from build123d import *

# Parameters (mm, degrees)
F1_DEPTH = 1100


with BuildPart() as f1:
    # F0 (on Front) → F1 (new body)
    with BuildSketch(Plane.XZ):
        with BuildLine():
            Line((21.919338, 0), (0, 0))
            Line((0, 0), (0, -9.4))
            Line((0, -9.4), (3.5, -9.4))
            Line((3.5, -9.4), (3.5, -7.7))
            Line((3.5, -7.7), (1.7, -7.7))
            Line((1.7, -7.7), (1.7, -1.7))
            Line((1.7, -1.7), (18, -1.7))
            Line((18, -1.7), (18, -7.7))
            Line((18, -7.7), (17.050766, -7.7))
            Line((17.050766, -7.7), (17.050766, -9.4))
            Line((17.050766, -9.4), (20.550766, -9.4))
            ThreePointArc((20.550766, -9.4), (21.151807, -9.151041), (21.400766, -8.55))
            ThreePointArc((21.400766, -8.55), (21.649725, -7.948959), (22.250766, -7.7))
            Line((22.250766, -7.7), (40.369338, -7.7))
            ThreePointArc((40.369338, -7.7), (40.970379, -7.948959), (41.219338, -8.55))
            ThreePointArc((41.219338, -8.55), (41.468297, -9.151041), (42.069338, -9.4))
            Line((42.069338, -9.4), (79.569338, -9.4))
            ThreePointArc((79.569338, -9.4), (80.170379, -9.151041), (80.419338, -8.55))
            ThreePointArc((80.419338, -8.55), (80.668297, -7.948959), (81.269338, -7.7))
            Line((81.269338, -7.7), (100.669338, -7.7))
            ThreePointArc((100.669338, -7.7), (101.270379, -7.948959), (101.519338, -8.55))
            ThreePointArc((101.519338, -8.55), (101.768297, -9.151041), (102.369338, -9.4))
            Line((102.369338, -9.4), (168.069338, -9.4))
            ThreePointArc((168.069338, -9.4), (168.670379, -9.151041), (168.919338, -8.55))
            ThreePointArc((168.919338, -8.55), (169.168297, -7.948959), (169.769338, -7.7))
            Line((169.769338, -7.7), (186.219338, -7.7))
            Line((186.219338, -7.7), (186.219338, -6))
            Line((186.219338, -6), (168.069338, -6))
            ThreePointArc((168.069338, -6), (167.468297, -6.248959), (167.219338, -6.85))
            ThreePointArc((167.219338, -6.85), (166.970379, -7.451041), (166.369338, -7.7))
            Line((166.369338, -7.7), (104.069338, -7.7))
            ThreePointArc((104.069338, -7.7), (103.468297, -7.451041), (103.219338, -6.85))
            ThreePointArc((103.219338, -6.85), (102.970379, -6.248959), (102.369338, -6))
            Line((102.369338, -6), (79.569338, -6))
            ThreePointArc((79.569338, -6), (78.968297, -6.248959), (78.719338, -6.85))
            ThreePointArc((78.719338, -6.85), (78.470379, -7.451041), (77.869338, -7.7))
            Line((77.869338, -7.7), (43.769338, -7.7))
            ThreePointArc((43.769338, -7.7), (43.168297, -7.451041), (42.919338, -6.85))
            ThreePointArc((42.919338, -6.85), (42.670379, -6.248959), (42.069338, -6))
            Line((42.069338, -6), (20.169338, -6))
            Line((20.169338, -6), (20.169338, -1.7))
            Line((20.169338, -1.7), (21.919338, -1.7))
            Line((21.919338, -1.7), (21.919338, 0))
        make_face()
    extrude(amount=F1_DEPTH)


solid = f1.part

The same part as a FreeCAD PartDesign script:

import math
import FreeCAD as App
import Part
import Sketcher
from FreeCAD import Vector

doc = App.newDocument("Part")
params = doc.addObject("Spreadsheet::Sheet", "Params")
for row, (alias, value) in enumerate([
    ("sketch1_height", "6 mm"),
    ("sketch1_radius", "0.849999 mm"),
    ("sketch1_width", "3.5 mm"),
    ("sketch1_width2", "1.8 mm"),
    ("sketch1_width3", "16.3 mm"),
    ("pad1_length", "1100 mm"),
], start=1):
    params.set(f"A{row}", alias)
    params.set(f"B{row}", "=" + value)
    params.setAlias(f"B{row}", alias)

body = doc.addObject("PartDesign::Body", "Body")

# Sketch on XZ plane
sketch1 = doc.addObject("Sketcher::SketchObject", "Sketch")
body.addObject(sketch1)
sketch1.AttachmentSupport = (doc.XZ_Plane, [""])
sketch1.MapMode = "FlatFace"
sketch1.addGeometry(Part.LineSegment(Vector(21.9, 0, 0), Vector(0, 0, 0)), False)
sketch1.addGeometry(Part.LineSegment(Vector(0, 0, 0), Vector(0, -9.4, 0)), False)
sketch1.addGeometry(Part.LineSegment(Vector(0, -9.4, 0), Vector(3.5, -9.4, 0)), False)
sketch1.addGeometry(Part.LineSegment(Vector(3.5, -9.4, 0), Vector(3.5, -7.7, 0)), False)
sketch1.addGeometry(Part.LineSegment(Vector(3.5, -7.7, 0), Vector(1.7, -7.7, 0)), False)
sketch1.addGeometry(Part.LineSegment(Vector(1.7, -7.7, 0), Vector(1.7, -1.7, 0)), False)
sketch1.addGeometry(Part.LineSegment(Vector(1.7, -1.7, 0), Vector(18, -1.7, 0)), False)
sketch1.addGeometry(Part.LineSegment(Vector(18, -1.7, 0), Vector(18, -7.7, 0)), False)
sketch1.addGeometry(Part.LineSegment(Vector(18, -7.7, 0), Vector(17.1, -7.7, 0)), False)
sketch1.addGeometry(Part.LineSegment(Vector(17.1, -7.7, 0), Vector(17.1, -9.4, 0)), False)
sketch1.addGeometry(Part.LineSegment(Vector(17.1, -9.4, 0), Vector(20.6, -9.4, 0)), False)
sketch1.addGeometry(Part.ArcOfCircle(Part.Circle(Vector(20.6, -8.6, 0), Vector(0, 0, 1), 0.8), math.radians(-90), math.radians(0)), False)
sketch1.addGeometry(Part.ArcOfCircle(Part.Circle(Vector(22.3, -8.5, 0), Vector(0, 0, 1), 0.8), math.radians(90), math.radians(180)), False)
sketch1.addGeometry(Part.LineSegment(Vector(22.3, -7.7, 0), Vector(40.4, -7.7, 0)), False)
sketch1.addGeometry(Part.ArcOfCircle(Part.Circle(Vector(40.4, -8.5, 0), Vector(0, 0, 1), 0.8), math.radians(0), math.radians(90)), False)
sketch1.addGeometry(Part.ArcOfCircle(Part.Circle(Vector(42.1, -8.6, 0), Vector(0, 0, 1), 0.8), math.radians(180), math.radians(270)), False)
sketch1.addGeometry(Part.LineSegment(Vector(42.1, -9.4, 0), Vector(79.6, -9.4, 0)), False)
sketch1.addGeometry(Part.ArcOfCircle(Part.Circle(Vector(79.6, -8.6, 0), Vector(0, 0, 1), 0.8), math.radians(-90), math.radians(0)), False)
sketch1.addGeometry(Part.ArcOfCircle(Part.Circle(Vector(81.3, -8.5, 0), Vector(0, 0, 1), 0.8), math.radians(90), math.radians(180)), False)
sketch1.addGeometry(Part.LineSegment(Vector(81.3, -7.7, 0), Vector(100.7, -7.7, 0)), False)
sketch1.addGeometry(Part.ArcOfCircle(Part.Circle(Vector(100.7, -8.5, 0), Vector(0, 0, 1), 0.8), math.radians(0), math.radians(90)), False)
sketch1.addGeometry(Part.ArcOfCircle(Part.Circle(Vector(102.4, -8.6, 0), Vector(0, 0, 1), 0.8), math.radians(180), math.radians(270)), False)
sketch1.addGeometry(Part.LineSegment(Vector(102.4, -9.4, 0), Vector(168.1, -9.4, 0)), False)
sketch1.addGeometry(Part.ArcOfCircle(Part.Circle(Vector(168.1, -8.6, 0), Vector(0, 0, 1), 0.8), math.radians(-90), math.radians(0)), False)
sketch1.addGeometry(Part.ArcOfCircle(Part.Circle(Vector(169.8, -8.5, 0), Vector(0, 0, 1), 0.8), math.radians(90), math.radians(180)), False)
sketch1.addGeometry(Part.LineSegment(Vector(169.8, -7.7, 0), Vector(186.2, -7.7, 0)), False)
sketch1.addGeometry(Part.LineSegment(Vector(186.2, -7.7, 0), Vector(186.2, -6, 0)), False)
sketch1.addGeometry(Part.LineSegment(Vector(186.2, -6, 0), Vector(168.1, -6, 0)), False)
sketch1.addGeometry(Part.ArcOfCircle(Part.Circle(Vector(168.1, -6.8, 0), Vector(0, 0, 1), 0.8), math.radians(90), math.radians(180)), False)
sketch1.addGeometry(Part.ArcOfCircle(Part.Circle(Vector(166.4, -6.9, 0), Vector(0, 0, 1), 0.8), math.radians(-90), math.radians(0)), False)
sketch1.addGeometry(Part.LineSegment(Vector(166.4, -7.7, 0), Vector(104.1, -7.7, 0)), False)
sketch1.addGeometry(Part.ArcOfCircle(Part.Circle(Vector(104.1, -6.9, 0), Vector(0, 0, 1), 0.8), math.radians(180), math.radians(270)), False)
sketch1.addGeometry(Part.ArcOfCircle(Part.Circle(Vector(102.4, -6.8, 0), Vector(0, 0, 1), 0.8), math.radians(0), math.radians(90)), False)
sketch1.addGeometry(Part.LineSegment(Vector(102.4, -6, 0), Vector(79.6, -6, 0)), False)
sketch1.addGeometry(Part.ArcOfCircle(Part.Circle(Vector(79.6, -6.8, 0), Vector(0, 0, 1), 0.8), math.radians(90), math.radians(180)), False)
sketch1.addGeometry(Part.ArcOfCircle(Part.Circle(Vector(77.9, -6.9, 0), Vector(0, 0, 1), 0.8), math.radians(-90), math.radians(0)), False)
sketch1.addGeometry(Part.LineSegment(Vector(77.9, -7.7, 0), Vector(43.8, -7.7, 0)), False)
sketch1.addGeometry(Part.ArcOfCircle(Part.Circle(Vector(43.8, -6.9, 0), Vector(0, 0, 1), 0.8), math.radians(180), math.radians(270)), False)
sketch1.addGeometry(Part.ArcOfCircle(Part.Circle(Vector(42.1, -6.8, 0), Vector(0, 0, 1), 0.8), math.radians(0), math.radians(90)), False)
sketch1.addGeometry(Part.LineSegment(Vector(42.1, -6, 0), Vector(20.2, -6, 0)), False)
sketch1.addGeometry(Part.LineSegment(Vector(20.2, -6, 0), Vector(20.2, -1.7, 0)), False)
sketch1.addGeometry(Part.LineSegment(Vector(20.2, -1.7, 0), Vector(21.9, -1.7, 0)), False)
sketch1.addGeometry(Part.LineSegment(Vector(21.9, -1.7, 0), Vector(21.9, 0, 0)), False)
sketch1.addConstraint(Sketcher.Constraint("Coincident", 0, 2, 1, 1))
sketch1.addConstraint(Sketcher.Constraint("Coincident", 1, 2, 2, 1))
sketch1.addConstraint(Sketcher.Constraint("Coincident", 2, 2, 3, 1))
sketch1.addConstraint(Sketcher.Constraint("Coincident", 3, 2, 4, 1))
sketch1.addConstraint(Sketcher.Constraint("Coincident", 4, 2, 5, 1))
sketch1.addConstraint(Sketcher.Constraint("Coincident", 5, 2, 6, 1))
sketch1.addConstraint(Sketcher.Constraint("Coincident", 6, 2, 7, 1))
sketch1.addConstraint(Sketcher.Constraint("Coincident", 7, 2, 8, 1))
sketch1.addConstraint(Sketcher.Constraint("Coincident", 8, 2, 9, 1))
sketch1.addConstraint(Sketcher.Constraint("Coincident", 9, 2, 10, 1))
sketch1.addConstraint(Sketcher.Constraint("Tangent", 10, 2, 11, 1))
sketch1.addConstraint(Sketcher.Constraint("Tangent", 11, 2, 12, 2))
sketch1.addConstraint(Sketcher.Constraint("Tangent", 12, 1, 13, 1))
sketch1.addConstraint(Sketcher.Constraint("Tangent", 13, 2, 14, 2))
sketch1.addConstraint(Sketcher.Constraint("Tangent", 14, 1, 15, 1))
sketch1.addConstraint(Sketcher.Constraint("Tangent", 15, 2, 16, 1))
sketch1.addConstraint(Sketcher.Constraint("Tangent", 16, 2, 17, 1))
sketch1.addConstraint(Sketcher.Constraint("Tangent", 17, 2, 18, 2))
sketch1.addConstraint(Sketcher.Constraint("Tangent", 18, 1, 19, 1))
sketch1.addConstraint(Sketcher.Constraint("Tangent", 19, 2, 20, 2))
sketch1.addConstraint(Sketcher.Constraint("Tangent", 20, 1, 21, 1))
sketch1.addConstraint(Sketcher.Constraint("Tangent", 21, 2, 22, 1))
sketch1.addConstraint(Sketcher.Constraint("Tangent", 22, 2, 23, 1))
sketch1.addConstraint(Sketcher.Constraint("Tangent", 23, 2, 24, 2))
sketch1.addConstraint(Sketcher.Constraint("Tangent", 24, 1, 25, 1))
sketch1.addConstraint(Sketcher.Constraint("Coincident", 25, 2, 26, 1))
sketch1.addConstraint(Sketcher.Constraint("Coincident", 26, 2, 27, 1))
sketch1.addConstraint(Sketcher.Constraint("Tangent", 27, 2, 28, 1))
sketch1.addConstraint(Sketcher.Constraint("Tangent", 28, 2, 29, 2))
sketch1.addConstraint(Sketcher.Constraint("Tangent", 29, 1, 30, 1))
sketch1.addConstraint(Sketcher.Constraint("Tangent", 30, 2, 31, 2))
sketch1.addConstraint(Sketcher.Constraint("Tangent", 31, 1, 32, 1))
sketch1.addConstraint(Sketcher.Constraint("Tangent", 32, 2, 33, 1))
sketch1.addConstraint(Sketcher.Constraint("Tangent", 33, 2, 34, 1))
sketch1.addConstraint(Sketcher.Constraint("Tangent", 34, 2, 35, 2))
sketch1.addConstraint(Sketcher.Constraint("Tangent", 35, 1, 36, 1))
sketch1.addConstraint(Sketcher.Constraint("Tangent", 36, 2, 37, 2))
sketch1.addConstraint(Sketcher.Constraint("Tangent", 37, 1, 38, 1))
sketch1.addConstraint(Sketcher.Constraint("Tangent", 38, 2, 39, 1))
sketch1.addConstraint(Sketcher.Constraint("Coincident", 39, 2, 40, 1))
sketch1.addConstraint(Sketcher.Constraint("Coincident", 40, 2, 41, 1))
sketch1.addConstraint(Sketcher.Constraint("Coincident", 41, 2, 42, 1))
sketch1.addConstraint(Sketcher.Constraint("Coincident", 42, 2, 0, 1))
sketch1.addConstraint(Sketcher.Constraint("Horizontal", 0))
sketch1.addConstraint(Sketcher.Constraint("Vertical", 1))
sketch1.addConstraint(Sketcher.Constraint("Horizontal", 2))
sketch1.addConstraint(Sketcher.Constraint("Vertical", 3))
sketch1.addConstraint(Sketcher.Constraint("Horizontal", 4))
sketch1.addConstraint(Sketcher.Constraint("Vertical", 5))
sketch1.addConstraint(Sketcher.Constraint("Horizontal", 6))
sketch1.addConstraint(Sketcher.Constraint("Vertical", 7))
sketch1.addConstraint(Sketcher.Constraint("Horizontal", 8))
sketch1.addConstraint(Sketcher.Constraint("Vertical", 9))
sketch1.addConstraint(Sketcher.Constraint("Horizontal", 10))
sketch1.addConstraint(Sketcher.Constraint("Horizontal", 13))
sketch1.addConstraint(Sketcher.Constraint("Horizontal", 16))
sketch1.addConstraint(Sketcher.Constraint("Horizontal", 19))
sketch1.addConstraint(Sketcher.Constraint("Horizontal", 22))
sketch1.addConstraint(Sketcher.Constraint("Horizontal", 25))
sketch1.addConstraint(Sketcher.Constraint("Vertical", 26))
sketch1.addConstraint(Sketcher.Constraint("Horizontal", 27))
sketch1.addConstraint(Sketcher.Constraint("Horizontal", 30))
sketch1.addConstraint(Sketcher.Constraint("Horizontal", 33))
sketch1.addConstraint(Sketcher.Constraint("Horizontal", 36))
sketch1.addConstraint(Sketcher.Constraint("Horizontal", 39))
sketch1.addConstraint(Sketcher.Constraint("Vertical", 40))
sketch1.addConstraint(Sketcher.Constraint("Horizontal", 41))
sketch1.addConstraint(Sketcher.Constraint("Vertical", 42))
sketch1.addConstraint(Sketcher.Constraint("Coincident", 0, 2, -1, 1))
sketch1.addConstraint(Sketcher.Constraint("Equal", 11, 12))
sketch1.addConstraint(Sketcher.Constraint("Equal", 12, 14))
sketch1.addConstraint(Sketcher.Constraint("Equal", 14, 15))
sketch1.addConstraint(Sketcher.Constraint("Equal", 15, 17))
sketch1.addConstraint(Sketcher.Constraint("Equal", 17, 18))
sketch1.addConstraint(Sketcher.Constraint("Equal", 18, 20))
sketch1.addConstraint(Sketcher.Constraint("Equal", 20, 21))
sketch1.addConstraint(Sketcher.Constraint("Equal", 21, 23))
sketch1.addConstraint(Sketcher.Constraint("Equal", 23, 24))
sketch1.addConstraint(Sketcher.Constraint("Equal", 24, 28))
sketch1.addConstraint(Sketcher.Constraint("Equal", 28, 29))
sketch1.addConstraint(Sketcher.Constraint("Equal", 29, 31))
sketch1.addConstraint(Sketcher.Constraint("Equal", 31, 32))
sketch1.addConstraint(Sketcher.Constraint("Equal", 32, 34))
sketch1.addConstraint(Sketcher.Constraint("Equal", 34, 35))
sketch1.addConstraint(Sketcher.Constraint("Equal", 35, 37))
sketch1.addConstraint(Sketcher.Constraint("Equal", 37, 38))
sketch1.addConstraint(Sketcher.Constraint("Horizontal", 11, 3, 12, 3))
sketch1.addConstraint(Sketcher.Constraint("Horizontal", 14, 3, 15, 3))
sketch1.addConstraint(Sketcher.Constraint("Horizontal", 17, 3, 18, 3))
sketch1.addConstraint(Sketcher.Constraint("Horizontal", 20, 3, 21, 3))
sketch1.addConstraint(Sketcher.Constraint("Horizontal", 23, 3, 24, 3))
sketch1.addConstraint(Sketcher.Constraint("Horizontal", 28, 3, 29, 3))
sketch1.addConstraint(Sketcher.Constraint("Horizontal", 31, 3, 32, 3))
sketch1.addConstraint(Sketcher.Constraint("Horizontal", 34, 3, 35, 3))
sketch1.addConstraint(Sketcher.Constraint("Horizontal", 37, 3, 38, 3))
sketch1.addConstraint(Sketcher.Constraint("Horizontal", 4, 2, 7, 2))
sketch1.addConstraint(Sketcher.Constraint("Horizontal", 2, 2, 9, 2))
sketch1.addConstraint(Sketcher.Constraint("Horizontal", 8, 2, 12, 1))
sketch1.addConstraint(Sketcher.Constraint("Horizontal", 25, 2, 29, 1))
sketch1.addConstraint(Sketcher.Constraint("Horizontal", 6, 2, 40, 2))
sketch1.addConstraint(Sketcher.Constraint("Vertical", 23, 3, 28, 3))
sketch1.addConstraint(Sketcher.Constraint("Vertical", 21, 3, 32, 3))
sketch1.addConstraint(Sketcher.Constraint("Vertical", 17, 3, 34, 3))
sketch1.addConstraint(Sketcher.Constraint("Vertical", 15, 3, 38, 3))
sketch1.addConstraint(Sketcher.Constraint("Equal", 2, 10))
sketch1.addConstraint(Sketcher.Constraint("Equal", 26, 42))
sketch1.addConstraint(Sketcher.Constraint("DistanceY", 5, 1, 5, 2, 6.0))
sketch1.addConstraint(Sketcher.Constraint("Radius", 11, 0.849999))
sketch1.addConstraint(Sketcher.Constraint("DistanceX", 2, 1, 2, 2, 3.5))
sketch1.addConstraint(Sketcher.Constraint("DistanceX", 4, 2, 4, 1, 1.8))
sketch1.addConstraint(Sketcher.Constraint("DistanceX", 6, 1, 6, 2, 16.3))
sketch1.addConstraint(Sketcher.Constraint("DistanceX", 16, 1, 16, 2, 37.5))
sketch1.addConstraint(Sketcher.Constraint("DistanceX", 19, 1, 19, 2, 19.4))
sketch1.addConstraint(Sketcher.Constraint("DistanceX", 22, 1, 22, 2, 65.7))
sketch1.addConstraint(Sketcher.Constraint("DistanceX", 39, 2, 39, 1, 21.9))
sketch1.addConstraint(Sketcher.Constraint("DistanceX", 25, 1, 25, 2, 16.45))
sketch1.addConstraint(Sketcher.Constraint("DistanceX", 41, 1, 41, 2, 1.75))
sketch1.addConstraint(Sketcher.Constraint("DistanceX", 0, 2, 0, 1, 21.919338))
sketch1.addConstraint(Sketcher.Constraint("DistanceX", 8, 2, 8, 1, 0.949234))
sketch1.setExpression("Constraints[106]", "Params.sketch1_height")
sketch1.setExpression("Constraints[107]", "Params.sketch1_radius")
sketch1.setExpression("Constraints[108]", "Params.sketch1_width")
sketch1.setExpression("Constraints[109]", "Params.sketch1_width2")
sketch1.setExpression("Constraints[110]", "Params.sketch1_width3")
pad1 = doc.addObject("PartDesign::Pad", "Pad")
body.addObject(pad1)
pad1.Profile = sketch1
pad1.setExpression("Length", "Params.pad1_length")

doc.recompute()
